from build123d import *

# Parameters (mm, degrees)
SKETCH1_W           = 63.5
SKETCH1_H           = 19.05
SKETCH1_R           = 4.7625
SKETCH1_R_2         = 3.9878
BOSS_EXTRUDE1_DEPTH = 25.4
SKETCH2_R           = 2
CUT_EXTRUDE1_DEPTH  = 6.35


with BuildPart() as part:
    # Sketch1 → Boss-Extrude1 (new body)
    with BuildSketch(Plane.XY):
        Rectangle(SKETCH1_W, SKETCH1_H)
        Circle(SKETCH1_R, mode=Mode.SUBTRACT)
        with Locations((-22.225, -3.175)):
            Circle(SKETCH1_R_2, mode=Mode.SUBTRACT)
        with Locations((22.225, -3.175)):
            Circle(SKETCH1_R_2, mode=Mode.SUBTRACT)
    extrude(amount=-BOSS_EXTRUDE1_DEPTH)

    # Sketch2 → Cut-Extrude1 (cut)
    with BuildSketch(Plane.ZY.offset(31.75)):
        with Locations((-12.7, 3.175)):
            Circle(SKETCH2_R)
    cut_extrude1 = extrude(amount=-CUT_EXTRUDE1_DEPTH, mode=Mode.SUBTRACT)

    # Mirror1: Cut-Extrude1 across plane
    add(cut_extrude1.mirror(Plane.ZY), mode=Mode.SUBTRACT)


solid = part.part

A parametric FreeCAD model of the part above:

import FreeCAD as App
import Part
import Sketcher
Q = App.Units.Quantity

doc = App.newDocument("Part")
body = doc.addObject("PartDesign::Body", "Body")

# Sketch on XY plane
sketch1 = body.newObject("Sketcher::SketchObject", "Sketch")
sketch1.AttachmentSupport = (doc.getObject("XY_Plane"), [""])
sketch1.MapMode = "FlatFace"
sketch1.addGeometry(Part.LineSegment(App.Vector(-31.75, 9.525, 0), App.Vector(-31.75, -9.525, 0)), False)
sketch1.addGeometry(Part.LineSegment(App.Vector(-31.75, -9.525, 0), App.Vector(31.75, -9.525, 0)), False)
sketch1.addGeometry(Part.LineSegment(App.Vector(31.75, -9.525, 0), App.Vector(31.75, 9.525, 0)), False)
sketch1.addGeometry(Part.LineSegment(App.Vector(31.75, 9.525, 0), App.Vector(-31.75, 9.525, 0)), False)
sketch1.addGeometry(Part.Circle(App.Vector(-22.225, -3.175, 0), App.Vector(0, 0, 1), 3.9878), False)
sketch1.addGeometry(Part.Circle(App.Vector(22.225, -3.175, 0), App.Vector(0, 0, 1), 3.9878), False)
sketch1.addGeometry(Part.Circle(App.Vector(0, 0, 0), App.Vector(0, 0, 1), 4.7625), False)
sketch1.addConstraint(Sketcher.Constraint("Coincident", 0, 2, 1, 1))
sketch1.addConstraint(Sketcher.Constraint("Coincident", 1, 2, 2, 1))
sketch1.addConstraint(Sketcher.Constraint("Coincident", 2, 2, 3, 1))
sketch1.addConstraint(Sketcher.Constraint("Coincident", 3, 2, 0, 1))
sketch1.addConstraint(Sketcher.Constraint("Vertical", 0))
sketch1.addConstraint(Sketcher.Constraint("Horizontal", 1))
sketch1.addConstraint(Sketcher.Constraint("Vertical", 2))
sketch1.addConstraint(Sketcher.Constraint("Horizontal", 3))
sketch1.addConstraint(Sketcher.Constraint("Coincident", 6, 3, -1, 1))
sketch1.addConstraint(Sketcher.Constraint("Equal", 4, 5))
sketch1.addConstraint(Sketcher.Constraint("Symmetric", 0, 2, 2, 2, -1, 1))
sketch1.addConstraint(Sketcher.Constraint("Symmetric", 4, 3, 5, 3, -2))
sketch1.addConstraint(Sketcher.Constraint("Diameter", 4, Q("0.314 in")))
sketch1.addConstraint(Sketcher.Constraint("Diameter", 6, Q("0.375 in")))
sketch1.addConstraint(Sketcher.Constraint("DistanceX", 1, 1, 1, 2, Q("2.5 in")))
sketch1.addConstraint(Sketcher.Constraint("DistanceY", 0, 2, 0, 1, Q("0.75 in")))
sketch1.addConstraint(Sketcher.Constraint("DistanceY", 5, 3, 2, 2, Q("0.5 in")))
sketch1.addConstraint(Sketcher.Constraint("DistanceX", 4, 3, 5, 3, Q("1.75 in")))
pad1 = body.newObject("PartDesign::Pad", "Pad")
pad1.Profile = sketch1
pad1.Length = Q("1 in")
pad1.Reversed = True

# Sketch on YZ plane
sketch2 = body.newObject("Sketcher::SketchObject", "Sketch001")
sketch2.AttachmentSupport = (doc.getObject("YZ_Plane"), [""])
sketch2.MapMode = "FlatFace"
sketch2.AttachmentOffset = App.Placement(App.Vector(0, 0, -1.25 * 25.4), App.Rotation())
sketch2.addGeometry(Part.Circle(App.Vector(3.175, -12.7, 0), App.Vector(0, 0, 1), 2), False)
sketch2.addConstraint(Sketcher.Constraint("DistanceY", 0, 3, -1, 1, Q("0.5 in")))
sketch2.addConstraint(Sketcher.Constraint("Diameter", 0, Q("4 mm")))
sketch2.addConstraint(Sketcher.Constraint("DistanceX", -1, 1, 0, 3, Q("0.125 in")))
pocket1 = body.newObject("PartDesign::Pocket", "Pocket")
pocket1.Profile = sketch2
pocket1.Length = Q("0.25 in")
pocket1.Reversed = True
doc.recompute()

mirrored = body.newObject("PartDesign::Mirrored", "Mirrored")
mirrored.Originals = [pocket1]
mirrored.MirrorPlane = (doc.getObject("YZ_Plane"), [""])
body.Tip = mirrored

doc.recompute()
